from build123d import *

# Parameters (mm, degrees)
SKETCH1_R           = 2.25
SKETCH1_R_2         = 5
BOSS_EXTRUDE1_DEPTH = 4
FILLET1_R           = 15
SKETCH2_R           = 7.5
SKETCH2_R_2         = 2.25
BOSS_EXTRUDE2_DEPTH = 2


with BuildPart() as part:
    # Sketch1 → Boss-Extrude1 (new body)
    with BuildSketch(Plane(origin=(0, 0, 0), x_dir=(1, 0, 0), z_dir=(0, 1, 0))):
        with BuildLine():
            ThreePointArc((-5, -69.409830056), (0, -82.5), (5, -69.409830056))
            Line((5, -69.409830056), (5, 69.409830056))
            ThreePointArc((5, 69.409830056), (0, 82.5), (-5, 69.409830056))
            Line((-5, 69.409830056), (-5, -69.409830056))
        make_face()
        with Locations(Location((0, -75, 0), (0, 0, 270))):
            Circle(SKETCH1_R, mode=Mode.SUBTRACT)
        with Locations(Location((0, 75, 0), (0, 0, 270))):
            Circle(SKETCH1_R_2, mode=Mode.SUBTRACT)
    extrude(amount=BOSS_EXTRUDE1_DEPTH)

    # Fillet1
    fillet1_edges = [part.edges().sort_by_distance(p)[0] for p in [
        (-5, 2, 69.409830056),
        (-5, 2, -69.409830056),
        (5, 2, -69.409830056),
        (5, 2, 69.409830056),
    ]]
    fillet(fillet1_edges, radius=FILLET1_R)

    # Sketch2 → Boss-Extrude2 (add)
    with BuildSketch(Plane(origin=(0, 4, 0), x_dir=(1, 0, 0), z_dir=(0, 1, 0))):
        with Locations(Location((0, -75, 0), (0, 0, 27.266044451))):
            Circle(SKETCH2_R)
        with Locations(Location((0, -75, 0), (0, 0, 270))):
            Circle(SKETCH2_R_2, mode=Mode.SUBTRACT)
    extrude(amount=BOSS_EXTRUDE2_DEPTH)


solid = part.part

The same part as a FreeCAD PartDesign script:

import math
import FreeCAD as App
import Part
import Sketcher
from FreeCAD import Vector
Q = App.Units.Quantity


def edges_at(feature, points):
    """Names of the edges that pass closest to the given points."""
    edges = feature.Shape.Edges
    near = lambda p: min(range(len(edges)), key=lambda i: edges[i].distToShape(Part.Vertex(*p))[0])
    return sorted({f"Edge{near(p) + 1}" for p in points})

doc = App.newDocument("Part")
body = doc.addObject("PartDesign::Body", "Body")

# Sketch on XZ plane
sketch1 = body.newObject("Sketcher::SketchObject", "Sketch")
sketch1.AttachmentSupport = (doc.getObject("XZ_Plane"), [""])
sketch1.MapMode = "FlatFace"
sketch1.addGeometry([
    Part.ArcOfCircle(Part.Circle(Vector(0, 75, 0), Vector(0, 0, 1), 7.5), math.radians(-48.189685), math.radians(228.189685)),  # 0
    Part.LineSegment(Vector(5, 69.40983, 0), Vector(5, -69.40983, 0)),  # 1
    Part.ArcOfCircle(Part.Circle(Vector(0, -75, 0), Vector(0, 0, 1), 7.5), math.radians(131.810315), math.radians(408.189685)),  # 2
    Part.LineSegment(Vector(-5, -69.40983, 0), Vector(-5, 69.40983, 0)),  # 3
    Part.Circle(Vector(0, 75, 0), Vector(0, 0, 1), 2.25),  # 4
    Part.Circle(Vector(0, -75, 0), Vector(0, 0, 1), 5),  # 5
], False)
sketch1.addConstraint([
    Sketcher.Constraint("Coincident", 0, 1, 1, 1),
    Sketcher.Constraint("Coincident", 1, 2, 2, 2),
    Sketcher.Constraint("Coincident", 2, 1, 3, 1),
    Sketcher.Constraint("Coincident", 3, 2, 0, 2),
    Sketcher.Constraint("Vertical", 1),
    Sketcher.Constraint("Vertical", 3),
    Sketcher.Constraint("Coincident", 4, 3, 0, 3),
    Sketcher.Constraint("Coincident", 5, 3, 2, 3),
    Sketcher.Constraint("Equal", 0, 2),
    Sketcher.Constraint("Symmetric", 0, 3, 2, 3, -1, 1),
    Sketcher.Constraint("Symmetric", 1, 2, 2, 1, -2),
    Sketcher.Constraint("Diameter", 5, Q("10 mm")),
    Sketcher.Constraint("Diameter", 4, Q("4.5 mm")),
    Sketcher.Constraint("Radius", 0, Q("7.5 mm")),
    Sketcher.Constraint("DistanceY", -1, 1, 0, 3, Q("75 mm")),
    Sketcher.Constraint("DistanceX", -1, 1, 0, 1, Q("5 mm")),
])
pad1 = body.newObject("PartDesign::Pad", "Pad")
pad1.Profile = sketch1
pad1.Length = 4
pad1.Reversed = True
doc.recompute()

fillet = body.newObject("PartDesign::Fillet", "Fillet")
fillet.Base = (pad1, edges_at(pad1, [
    (-5, 2, 69.41),
    (-5, 2, -69.41),
    (5, 2, -69.41),
    (5, 2, 69.41),
]))
fillet.Radius = 15

# Sketch on XZ plane
sketch2 = body.newObject("Sketcher::SketchObject", "Sketch001")
sketch2.AttachmentSupport = (doc.getObject("XZ_Plane"), [""])
sketch2.MapMode = "FlatFace"
sketch2.AttachmentOffset = App.Placement(Vector(0, 0, -4), App.Rotation())
sketch2.addGeometry([
    Part.Circle(Vector(0, 75, 0), Vector(0, 0, 1), 7.5),
    Part.Circle(Vector(0, 75, 0), Vector(0, 0, 1), 2.25),
], False)
sketch2.addConstraint([
    Sketcher.Constraint("Coincident", 1, 3, 0, 3),
    Sketcher.Constraint("PointOnObject", 0, 3, -2),
    Sketcher.Constraint("Diameter", 0, Q("15 mm")),
    Sketcher.Constraint("Diameter", 1, Q("4.5 mm")),
    Sketcher.Constraint("DistanceY", -1, 1, 0, 3, Q("75 mm")),
])
pad2 = body.newObject("PartDesign::Pad", "Pad001")
pad2.Profile = sketch2
pad2.Length = 2
pad2.Reversed = True

doc.recompute()
